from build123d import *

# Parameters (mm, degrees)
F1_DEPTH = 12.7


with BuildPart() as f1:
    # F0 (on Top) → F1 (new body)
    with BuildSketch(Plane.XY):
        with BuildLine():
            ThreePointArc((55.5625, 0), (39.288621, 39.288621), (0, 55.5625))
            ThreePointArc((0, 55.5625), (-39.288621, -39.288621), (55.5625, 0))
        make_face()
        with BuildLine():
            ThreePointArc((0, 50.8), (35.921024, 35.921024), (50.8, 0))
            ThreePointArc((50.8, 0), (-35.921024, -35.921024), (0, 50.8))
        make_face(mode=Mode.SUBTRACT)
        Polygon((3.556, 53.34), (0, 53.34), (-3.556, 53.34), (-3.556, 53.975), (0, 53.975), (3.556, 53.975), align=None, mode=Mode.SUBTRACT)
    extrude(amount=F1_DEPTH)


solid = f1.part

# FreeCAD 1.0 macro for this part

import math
import FreeCAD as App
import Part
import Sketcher

V = App.Vector
Q = App.Units.Quantity


def add_polygon(sketch, points):
    """Adds a closed chain of lines whose ends are joined by coincident constraints."""
    first, n = sketch.GeometryCount, len(points)
    for a, b in zip(points, points[1:] + points[:1]):
        sketch.addGeometry(Part.LineSegment(App.Vector(*a, 0), App.Vector(*b, 0)), False)
    for i in range(n):
        sketch.addConstraint(Sketcher.Constraint("Coincident", first + i, 2, first + (i + 1) % n, 1))

doc = App.newDocument("Part")
body = doc.addObject("PartDesign::Body", "Body")

# Sketch on XY plane
sketch1 = body.newObject("Sketcher::SketchObject", "Sketch")
sketch1.AttachmentSupport = (doc.getObject("XY_Plane"), [""])
sketch1.MapMode = "FlatFace"
sketch1.addGeometry(Part.ArcOfCircle(Part.Circle(V(0, 0, 0), V(0, 0, 1), 55.6), math.radians(0), math.radians(90)), False)  # 0
sketch1.addGeometry(Part.ArcOfCircle(Part.Circle(V(0, 0, 0), V(0, 0, 1), 55.6), math.radians(90), math.radians(360)), False)  # 1
sketch1.addGeometry(Part.ArcOfCircle(Part.Circle(V(0, 0, 0), V(0, 0, 1), 50.8), math.radians(90), math.radians(360)), False)  # 2
sketch1.addGeometry(Part.ArcOfCircle(Part.Circle(V(0, 0, 0), V(0, 0, 1), 50.8), math.radians(0), math.radians(90)), False)  # 3
add_polygon(sketch1, [(3.6, 54), (3.6, 53.3), (-3.6, 53.3), (-3.6, 54)])  # lines 4-7
sketch1.addConstraint([
    Sketcher.Constraint("Tangent", 0, 1, 1, 2),
    Sketcher.Constraint("Coincident", 1, 1, 0, 2),
    Sketcher.Constraint("Tangent", 2, 1, 3, 2),
    Sketcher.Constraint("Coincident", 3, 1, 2, 2),
    Sketcher.Constraint("Vertical", 4),
    Sketcher.Constraint("Horizontal", 5),
    Sketcher.Constraint("Vertical", 6),
    Sketcher.Constraint("Horizontal", 7),
    Sketcher.Constraint("Coincident", 0, 3, -1, 1),
    Sketcher.Constraint("Coincident", 2, 3, -1, 1),
    Sketcher.Constraint("PointOnObject", 0, 1, -1),
    Sketcher.Constraint("PointOnObject", 1, 1, -2),
    Sketcher.Constraint("PointOnObject", 2, 1, -2),
    Sketcher.Constraint("PointOnObject", 3, 1, -1),
    Sketcher.Constraint("Radius", 2, Q("2 in")),
    Sketcher.Constraint("Radius", 0, Q("2.1874999 in")),
    Sketcher.Constraint("DistanceX", 5, 2, 5, 1, Q("0.28 in")),
    Sketcher.Constraint("DistanceY", -1, 1, 4, 2, Q("2.1 in")),
    Sketcher.Constraint("DistanceY", 4, 2, 4, 1, Q("0.025 in")),
    Sketcher.Constraint("DistanceX", -1, 1, 4, 2, Q("0.14 in")),
])
pad1 = body.newObject("PartDesign::Pad", "Pad")
pad1.Profile = sketch1
pad1.Length = Q("0.5 in")

doc.recompute()
